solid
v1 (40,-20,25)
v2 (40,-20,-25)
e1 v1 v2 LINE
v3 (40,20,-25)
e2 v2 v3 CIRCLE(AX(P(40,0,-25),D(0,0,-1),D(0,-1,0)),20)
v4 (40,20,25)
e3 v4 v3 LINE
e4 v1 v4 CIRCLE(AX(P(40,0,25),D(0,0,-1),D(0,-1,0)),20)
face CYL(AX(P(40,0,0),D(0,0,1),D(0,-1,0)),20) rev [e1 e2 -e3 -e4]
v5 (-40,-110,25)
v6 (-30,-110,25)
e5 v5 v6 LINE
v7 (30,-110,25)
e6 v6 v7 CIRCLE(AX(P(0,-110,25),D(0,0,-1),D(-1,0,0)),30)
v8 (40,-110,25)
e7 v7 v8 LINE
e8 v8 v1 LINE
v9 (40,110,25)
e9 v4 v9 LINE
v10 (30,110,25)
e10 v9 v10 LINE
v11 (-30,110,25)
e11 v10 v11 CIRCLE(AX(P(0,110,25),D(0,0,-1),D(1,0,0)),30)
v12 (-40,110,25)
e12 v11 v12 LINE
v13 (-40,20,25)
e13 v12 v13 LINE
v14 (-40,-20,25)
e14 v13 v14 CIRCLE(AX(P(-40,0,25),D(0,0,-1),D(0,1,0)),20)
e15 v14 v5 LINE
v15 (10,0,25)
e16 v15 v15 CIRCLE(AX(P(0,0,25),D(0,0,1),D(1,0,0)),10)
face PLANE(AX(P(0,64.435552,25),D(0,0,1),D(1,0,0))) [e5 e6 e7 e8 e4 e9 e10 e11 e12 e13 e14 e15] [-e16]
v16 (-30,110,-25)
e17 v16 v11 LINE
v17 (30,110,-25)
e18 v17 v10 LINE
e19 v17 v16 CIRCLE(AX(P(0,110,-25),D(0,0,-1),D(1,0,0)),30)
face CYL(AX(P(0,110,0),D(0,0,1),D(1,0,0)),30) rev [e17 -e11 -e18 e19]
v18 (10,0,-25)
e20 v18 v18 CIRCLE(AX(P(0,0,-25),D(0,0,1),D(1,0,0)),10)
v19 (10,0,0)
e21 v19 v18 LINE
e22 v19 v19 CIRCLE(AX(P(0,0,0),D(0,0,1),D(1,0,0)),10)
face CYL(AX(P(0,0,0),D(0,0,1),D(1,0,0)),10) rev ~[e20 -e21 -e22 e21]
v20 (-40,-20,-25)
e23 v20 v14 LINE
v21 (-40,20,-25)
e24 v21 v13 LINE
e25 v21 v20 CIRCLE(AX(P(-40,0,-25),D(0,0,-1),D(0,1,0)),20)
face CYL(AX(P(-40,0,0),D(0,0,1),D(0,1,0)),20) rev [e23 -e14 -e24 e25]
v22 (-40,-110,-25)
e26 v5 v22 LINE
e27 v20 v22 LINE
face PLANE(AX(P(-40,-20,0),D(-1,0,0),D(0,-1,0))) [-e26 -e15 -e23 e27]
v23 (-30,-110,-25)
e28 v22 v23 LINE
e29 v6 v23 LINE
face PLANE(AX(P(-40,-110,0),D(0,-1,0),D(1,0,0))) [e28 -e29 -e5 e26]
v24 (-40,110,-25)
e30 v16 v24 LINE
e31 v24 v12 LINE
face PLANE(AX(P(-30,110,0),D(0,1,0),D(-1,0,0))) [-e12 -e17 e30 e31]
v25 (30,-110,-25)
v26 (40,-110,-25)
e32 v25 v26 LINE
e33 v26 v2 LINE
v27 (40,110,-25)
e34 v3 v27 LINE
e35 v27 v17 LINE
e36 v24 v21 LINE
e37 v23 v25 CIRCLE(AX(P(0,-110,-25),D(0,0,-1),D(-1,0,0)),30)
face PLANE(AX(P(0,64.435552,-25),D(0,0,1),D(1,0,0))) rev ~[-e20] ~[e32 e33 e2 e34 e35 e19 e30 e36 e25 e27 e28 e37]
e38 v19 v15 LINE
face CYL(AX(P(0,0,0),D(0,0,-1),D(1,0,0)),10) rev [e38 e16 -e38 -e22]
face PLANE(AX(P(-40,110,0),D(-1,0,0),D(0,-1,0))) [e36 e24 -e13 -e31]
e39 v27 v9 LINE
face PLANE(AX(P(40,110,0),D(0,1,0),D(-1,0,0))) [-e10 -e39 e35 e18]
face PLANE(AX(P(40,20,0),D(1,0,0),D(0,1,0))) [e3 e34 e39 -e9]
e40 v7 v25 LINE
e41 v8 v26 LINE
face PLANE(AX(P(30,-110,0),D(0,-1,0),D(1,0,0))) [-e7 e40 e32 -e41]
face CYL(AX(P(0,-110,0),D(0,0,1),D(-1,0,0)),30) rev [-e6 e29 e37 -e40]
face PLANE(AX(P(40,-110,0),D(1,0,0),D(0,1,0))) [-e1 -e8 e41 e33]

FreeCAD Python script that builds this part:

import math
import FreeCAD as App
import Part
import Sketcher
from FreeCAD import Vector
Q = App.Units.Quantity

doc = App.newDocument("Part")
body = doc.addObject("PartDesign::Body", "Body")

# Sketch on XY plane
sketch1 = body.newObject("Sketcher::SketchObject", "Sketch")
sketch1.AttachmentSupport = (doc.getObject("XY_Plane"), [""])
sketch1.MapMode = "FlatFace"
sketch1.addGeometry(Part.LineSegment(Vector(40, 20, 0), Vector(40, 110, 0)), False)
sketch1.addGeometry(Part.LineSegment(Vector(40, 110, 0), Vector(30, 110, 0)), False)
sketch1.addGeometry(Part.ArcOfCircle(Part.Circle(Vector(0, 110, 0), Vector(0, 0, 1), 30), math.radians(180), math.radians(360)), False)
sketch1.addGeometry(Part.LineSegment(Vector(-30, 110, 0), Vector(-40, 110, 0)), False)
sketch1.addGeometry(Part.LineSegment(Vector(-40, 110, 0), Vector(-40, 20, 0)), False)
sketch1.addGeometry(Part.ArcOfCircle(Part.Circle(Vector(-40, 0, 0), Vector(0, 0, 1), 20), math.radians(-90), math.radians(90)), False)
sketch1.addGeometry(Part.LineSegment(Vector(-40, -20, 0), Vector(-40, -110, 0)), False)
sketch1.addGeometry(Part.LineSegment(Vector(-40, -110, 0), Vector(-30, -110, 0)), False)
sketch1.addGeometry(Part.ArcOfCircle(Part.Circle(Vector(0, -110, 0), Vector(0, 0, 1), 30), math.radians(0), math.radians(180)), False)
sketch1.addGeometry(Part.LineSegment(Vector(30, -110, 0), Vector(40, -110, 0)), False)
sketch1.addGeometry(Part.LineSegment(Vector(40, -110, 0), Vector(40, -20, 0)), False)
sketch1.addGeometry(Part.ArcOfCircle(Part.Circle(Vector(40, 0, 0), Vector(0, 0, 1), 20), math.radians(90), math.radians(270)), False)
sketch1.addGeometry(Part.Circle(Vector(0, 0, 0), Vector(0, 0, 1), 10), False)
sketch1.addConstraint(Sketcher.Constraint("Coincident", 0, 2, 1, 1))
sketch1.addConstraint(Sketcher.Constraint("Coincident", 1, 2, 2, 2))
sketch1.addConstraint(Sketcher.Constraint("Coincident", 2, 1, 3, 1))
sketch1.addConstraint(Sketcher.Constraint("Coincident", 3, 2, 4, 1))
sketch1.addConstraint(Sketcher.Constraint("Coincident", 4, 2, 5, 2))
sketch1.addConstraint(Sketcher.Constraint("Coincident", 5, 1, 6, 1))
sketch1.addConstraint(Sketcher.Constraint("Coincident", 6, 2, 7, 1))
sketch1.addConstraint(Sketcher.Constraint("Coincident", 7, 2, 8, 2))
sketch1.addConstraint(Sketcher.Constraint("Coincident", 8, 1, 9, 1))
sketch1.addConstraint(Sketcher.Constraint("Coincident", 9, 2, 10, 1))
sketch1.addConstraint(Sketcher.Constraint("Coincident", 10, 2, 11, 2))
sketch1.addConstraint(Sketcher.Constraint("Coincident", 11, 1, 0, 1))
sketch1.addConstraint(Sketcher.Constraint("Vertical", 0))
sketch1.addConstraint(Sketcher.Constraint("Horizontal", 1))
sketch1.addConstraint(Sketcher.Constraint("Horizontal", 3))
sketch1.addConstraint(Sketcher.Constraint("Vertical", 4))
sketch1.addConstraint(Sketcher.Constraint("Vertical", 6))
sketch1.addConstraint(Sketcher.Constraint("Horizontal", 7))
sketch1.addConstraint(Sketcher.Constraint("Horizontal", 9))
sketch1.addConstraint(Sketcher.Constraint("Vertical", 10))
sketch1.addConstraint(Sketcher.Constraint("Coincident", 12, 3, -1, 1))
sketch1.addConstraint(Sketcher.Constraint("Equal", 2, 8))
sketch1.addConstraint(Sketcher.Constraint("Equal", 5, 11))
sketch1.addConstraint(Sketcher.Constraint("Symmetric", 2, 3, 8, 3, -1, 1))
sketch1.addConstraint(Sketcher.Constraint("Symmetric", 5, 3, 11, 3, -1, 1))
sketch1.addConstraint(Sketcher.Constraint("Symmetric", 0, 2, 6, 2, -1, 1))
sketch1.addConstraint(Sketcher.Constraint("Symmetric", 3, 2, 9, 2, -1, 1))
sketch1.addConstraint(Sketcher.Constraint("Symmetric", 1, 2, 2, 1, -2))
sketch1.addConstraint(Sketcher.Constraint("Symmetric", 5, 1, 10, 2, -2))
sketch1.addConstraint(Sketcher.Constraint("Horizontal", 2, 3, 0, 2))
sketch1.addConstraint(Sketcher.Constraint("Vertical", 11, 3, 0, 2))
sketch1.addConstraint(Sketcher.Constraint("Diameter", 12, Q("20 mm")))
sketch1.addConstraint(Sketcher.Constraint("Radius", 2, Q("30 mm")))
sketch1.addConstraint(Sketcher.Constraint("Radius", 5, Q("20 mm")))
sketch1.addConstraint(Sketcher.Constraint("DistanceX", 1, 2, 1, 1, Q("10 mm")))
sketch1.addConstraint(Sketcher.Constraint("DistanceY", 0, 1, 0, 2, Q("90 mm")))
pad1 = body.newObject("PartDesign::Pad", "Pad")
pad1.Profile = sketch1
pad1.Type = "TwoLengths"
pad1.Length = 25
pad1.Length2 = 25

doc.recompute()
